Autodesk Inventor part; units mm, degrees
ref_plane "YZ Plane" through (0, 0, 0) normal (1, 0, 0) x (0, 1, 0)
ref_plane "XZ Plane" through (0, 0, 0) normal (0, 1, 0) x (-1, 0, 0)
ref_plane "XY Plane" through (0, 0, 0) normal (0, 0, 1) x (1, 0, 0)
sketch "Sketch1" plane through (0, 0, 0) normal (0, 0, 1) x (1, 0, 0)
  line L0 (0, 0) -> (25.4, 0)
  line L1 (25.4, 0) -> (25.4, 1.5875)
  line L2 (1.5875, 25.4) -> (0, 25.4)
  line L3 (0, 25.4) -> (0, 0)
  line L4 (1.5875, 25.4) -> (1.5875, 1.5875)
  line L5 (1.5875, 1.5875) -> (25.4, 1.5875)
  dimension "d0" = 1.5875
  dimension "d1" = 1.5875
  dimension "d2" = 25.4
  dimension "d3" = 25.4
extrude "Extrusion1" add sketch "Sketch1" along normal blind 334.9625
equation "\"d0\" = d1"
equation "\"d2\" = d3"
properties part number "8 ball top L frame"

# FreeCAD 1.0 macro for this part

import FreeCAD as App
import Part
import Sketcher
Q = App.Units.Quantity

doc = App.newDocument("Part")
body = doc.addObject("PartDesign::Body", "Body")

# Sketch on XY plane
sketch1 = doc.addObject("Sketcher::SketchObject", "Sketch")
body.addObject(sketch1)
sketch1.AttachmentSupport = (doc.XY_Plane, [""])
sketch1.MapMode = "FlatFace"
sketch1.addGeometry(Part.LineSegment(App.Vector(0, 25.4, 0), App.Vector(0, 0, 0)), False)
sketch1.addGeometry(Part.LineSegment(App.Vector(0, 0, 0), App.Vector(25.4, 0, 0)), False)
sketch1.addGeometry(Part.LineSegment(App.Vector(25.4, 0, 0), App.Vector(25.4, 1.6, 0)), False)
sketch1.addGeometry(Part.LineSegment(App.Vector(25.4, 1.6, 0), App.Vector(1.6, 1.6, 0)), False)
sketch1.addGeometry(Part.LineSegment(App.Vector(1.6, 1.6, 0), App.Vector(1.6, 25.4, 0)), False)
sketch1.addGeometry(Part.LineSegment(App.Vector(1.6, 25.4, 0), App.Vector(0, 25.4, 0)), False)
sketch1.addConstraint(Sketcher.Constraint("Coincident", 0, 2, 1, 1))
sketch1.addConstraint(Sketcher.Constraint("Coincident", 1, 2, 2, 1))
sketch1.addConstraint(Sketcher.Constraint("Coincident", 2, 2, 3, 1))
sketch1.addConstraint(Sketcher.Constraint("Coincident", 3, 2, 4, 1))
sketch1.addConstraint(Sketcher.Constraint("Coincident", 4, 2, 5, 1))
sketch1.addConstraint(Sketcher.Constraint("Coincident", 5, 2, 0, 1))
sketch1.addConstraint(Sketcher.Constraint("Vertical", 0))
sketch1.addConstraint(Sketcher.Constraint("Horizontal", 1))
sketch1.addConstraint(Sketcher.Constraint("Vertical", 2))
sketch1.addConstraint(Sketcher.Constraint("Horizontal", 3))
sketch1.addConstraint(Sketcher.Constraint("Vertical", 4))
sketch1.addConstraint(Sketcher.Constraint("Horizontal", 5))
sketch1.addConstraint(Sketcher.Constraint("Coincident", 0, 2, -1, 1))
sketch1.addConstraint(Sketcher.Constraint("Equal", 1, 0))
sketch1.addConstraint(Sketcher.Constraint("Equal", 5, 2))
sketch1.addConstraint(Sketcher.Constraint("DistanceX", 1, 1, 1, 2, Q("1 in")))
sketch1.addConstraint(Sketcher.Constraint("DistanceX", 5, 2, 5, 1, Q("0.0625 in")))
pad1 = doc.addObject("PartDesign::Pad", "Pad")
body.addObject(pad1)
pad1.Profile = sketch1
pad1.Length = Q("13.1875 in")

doc.recompute()
